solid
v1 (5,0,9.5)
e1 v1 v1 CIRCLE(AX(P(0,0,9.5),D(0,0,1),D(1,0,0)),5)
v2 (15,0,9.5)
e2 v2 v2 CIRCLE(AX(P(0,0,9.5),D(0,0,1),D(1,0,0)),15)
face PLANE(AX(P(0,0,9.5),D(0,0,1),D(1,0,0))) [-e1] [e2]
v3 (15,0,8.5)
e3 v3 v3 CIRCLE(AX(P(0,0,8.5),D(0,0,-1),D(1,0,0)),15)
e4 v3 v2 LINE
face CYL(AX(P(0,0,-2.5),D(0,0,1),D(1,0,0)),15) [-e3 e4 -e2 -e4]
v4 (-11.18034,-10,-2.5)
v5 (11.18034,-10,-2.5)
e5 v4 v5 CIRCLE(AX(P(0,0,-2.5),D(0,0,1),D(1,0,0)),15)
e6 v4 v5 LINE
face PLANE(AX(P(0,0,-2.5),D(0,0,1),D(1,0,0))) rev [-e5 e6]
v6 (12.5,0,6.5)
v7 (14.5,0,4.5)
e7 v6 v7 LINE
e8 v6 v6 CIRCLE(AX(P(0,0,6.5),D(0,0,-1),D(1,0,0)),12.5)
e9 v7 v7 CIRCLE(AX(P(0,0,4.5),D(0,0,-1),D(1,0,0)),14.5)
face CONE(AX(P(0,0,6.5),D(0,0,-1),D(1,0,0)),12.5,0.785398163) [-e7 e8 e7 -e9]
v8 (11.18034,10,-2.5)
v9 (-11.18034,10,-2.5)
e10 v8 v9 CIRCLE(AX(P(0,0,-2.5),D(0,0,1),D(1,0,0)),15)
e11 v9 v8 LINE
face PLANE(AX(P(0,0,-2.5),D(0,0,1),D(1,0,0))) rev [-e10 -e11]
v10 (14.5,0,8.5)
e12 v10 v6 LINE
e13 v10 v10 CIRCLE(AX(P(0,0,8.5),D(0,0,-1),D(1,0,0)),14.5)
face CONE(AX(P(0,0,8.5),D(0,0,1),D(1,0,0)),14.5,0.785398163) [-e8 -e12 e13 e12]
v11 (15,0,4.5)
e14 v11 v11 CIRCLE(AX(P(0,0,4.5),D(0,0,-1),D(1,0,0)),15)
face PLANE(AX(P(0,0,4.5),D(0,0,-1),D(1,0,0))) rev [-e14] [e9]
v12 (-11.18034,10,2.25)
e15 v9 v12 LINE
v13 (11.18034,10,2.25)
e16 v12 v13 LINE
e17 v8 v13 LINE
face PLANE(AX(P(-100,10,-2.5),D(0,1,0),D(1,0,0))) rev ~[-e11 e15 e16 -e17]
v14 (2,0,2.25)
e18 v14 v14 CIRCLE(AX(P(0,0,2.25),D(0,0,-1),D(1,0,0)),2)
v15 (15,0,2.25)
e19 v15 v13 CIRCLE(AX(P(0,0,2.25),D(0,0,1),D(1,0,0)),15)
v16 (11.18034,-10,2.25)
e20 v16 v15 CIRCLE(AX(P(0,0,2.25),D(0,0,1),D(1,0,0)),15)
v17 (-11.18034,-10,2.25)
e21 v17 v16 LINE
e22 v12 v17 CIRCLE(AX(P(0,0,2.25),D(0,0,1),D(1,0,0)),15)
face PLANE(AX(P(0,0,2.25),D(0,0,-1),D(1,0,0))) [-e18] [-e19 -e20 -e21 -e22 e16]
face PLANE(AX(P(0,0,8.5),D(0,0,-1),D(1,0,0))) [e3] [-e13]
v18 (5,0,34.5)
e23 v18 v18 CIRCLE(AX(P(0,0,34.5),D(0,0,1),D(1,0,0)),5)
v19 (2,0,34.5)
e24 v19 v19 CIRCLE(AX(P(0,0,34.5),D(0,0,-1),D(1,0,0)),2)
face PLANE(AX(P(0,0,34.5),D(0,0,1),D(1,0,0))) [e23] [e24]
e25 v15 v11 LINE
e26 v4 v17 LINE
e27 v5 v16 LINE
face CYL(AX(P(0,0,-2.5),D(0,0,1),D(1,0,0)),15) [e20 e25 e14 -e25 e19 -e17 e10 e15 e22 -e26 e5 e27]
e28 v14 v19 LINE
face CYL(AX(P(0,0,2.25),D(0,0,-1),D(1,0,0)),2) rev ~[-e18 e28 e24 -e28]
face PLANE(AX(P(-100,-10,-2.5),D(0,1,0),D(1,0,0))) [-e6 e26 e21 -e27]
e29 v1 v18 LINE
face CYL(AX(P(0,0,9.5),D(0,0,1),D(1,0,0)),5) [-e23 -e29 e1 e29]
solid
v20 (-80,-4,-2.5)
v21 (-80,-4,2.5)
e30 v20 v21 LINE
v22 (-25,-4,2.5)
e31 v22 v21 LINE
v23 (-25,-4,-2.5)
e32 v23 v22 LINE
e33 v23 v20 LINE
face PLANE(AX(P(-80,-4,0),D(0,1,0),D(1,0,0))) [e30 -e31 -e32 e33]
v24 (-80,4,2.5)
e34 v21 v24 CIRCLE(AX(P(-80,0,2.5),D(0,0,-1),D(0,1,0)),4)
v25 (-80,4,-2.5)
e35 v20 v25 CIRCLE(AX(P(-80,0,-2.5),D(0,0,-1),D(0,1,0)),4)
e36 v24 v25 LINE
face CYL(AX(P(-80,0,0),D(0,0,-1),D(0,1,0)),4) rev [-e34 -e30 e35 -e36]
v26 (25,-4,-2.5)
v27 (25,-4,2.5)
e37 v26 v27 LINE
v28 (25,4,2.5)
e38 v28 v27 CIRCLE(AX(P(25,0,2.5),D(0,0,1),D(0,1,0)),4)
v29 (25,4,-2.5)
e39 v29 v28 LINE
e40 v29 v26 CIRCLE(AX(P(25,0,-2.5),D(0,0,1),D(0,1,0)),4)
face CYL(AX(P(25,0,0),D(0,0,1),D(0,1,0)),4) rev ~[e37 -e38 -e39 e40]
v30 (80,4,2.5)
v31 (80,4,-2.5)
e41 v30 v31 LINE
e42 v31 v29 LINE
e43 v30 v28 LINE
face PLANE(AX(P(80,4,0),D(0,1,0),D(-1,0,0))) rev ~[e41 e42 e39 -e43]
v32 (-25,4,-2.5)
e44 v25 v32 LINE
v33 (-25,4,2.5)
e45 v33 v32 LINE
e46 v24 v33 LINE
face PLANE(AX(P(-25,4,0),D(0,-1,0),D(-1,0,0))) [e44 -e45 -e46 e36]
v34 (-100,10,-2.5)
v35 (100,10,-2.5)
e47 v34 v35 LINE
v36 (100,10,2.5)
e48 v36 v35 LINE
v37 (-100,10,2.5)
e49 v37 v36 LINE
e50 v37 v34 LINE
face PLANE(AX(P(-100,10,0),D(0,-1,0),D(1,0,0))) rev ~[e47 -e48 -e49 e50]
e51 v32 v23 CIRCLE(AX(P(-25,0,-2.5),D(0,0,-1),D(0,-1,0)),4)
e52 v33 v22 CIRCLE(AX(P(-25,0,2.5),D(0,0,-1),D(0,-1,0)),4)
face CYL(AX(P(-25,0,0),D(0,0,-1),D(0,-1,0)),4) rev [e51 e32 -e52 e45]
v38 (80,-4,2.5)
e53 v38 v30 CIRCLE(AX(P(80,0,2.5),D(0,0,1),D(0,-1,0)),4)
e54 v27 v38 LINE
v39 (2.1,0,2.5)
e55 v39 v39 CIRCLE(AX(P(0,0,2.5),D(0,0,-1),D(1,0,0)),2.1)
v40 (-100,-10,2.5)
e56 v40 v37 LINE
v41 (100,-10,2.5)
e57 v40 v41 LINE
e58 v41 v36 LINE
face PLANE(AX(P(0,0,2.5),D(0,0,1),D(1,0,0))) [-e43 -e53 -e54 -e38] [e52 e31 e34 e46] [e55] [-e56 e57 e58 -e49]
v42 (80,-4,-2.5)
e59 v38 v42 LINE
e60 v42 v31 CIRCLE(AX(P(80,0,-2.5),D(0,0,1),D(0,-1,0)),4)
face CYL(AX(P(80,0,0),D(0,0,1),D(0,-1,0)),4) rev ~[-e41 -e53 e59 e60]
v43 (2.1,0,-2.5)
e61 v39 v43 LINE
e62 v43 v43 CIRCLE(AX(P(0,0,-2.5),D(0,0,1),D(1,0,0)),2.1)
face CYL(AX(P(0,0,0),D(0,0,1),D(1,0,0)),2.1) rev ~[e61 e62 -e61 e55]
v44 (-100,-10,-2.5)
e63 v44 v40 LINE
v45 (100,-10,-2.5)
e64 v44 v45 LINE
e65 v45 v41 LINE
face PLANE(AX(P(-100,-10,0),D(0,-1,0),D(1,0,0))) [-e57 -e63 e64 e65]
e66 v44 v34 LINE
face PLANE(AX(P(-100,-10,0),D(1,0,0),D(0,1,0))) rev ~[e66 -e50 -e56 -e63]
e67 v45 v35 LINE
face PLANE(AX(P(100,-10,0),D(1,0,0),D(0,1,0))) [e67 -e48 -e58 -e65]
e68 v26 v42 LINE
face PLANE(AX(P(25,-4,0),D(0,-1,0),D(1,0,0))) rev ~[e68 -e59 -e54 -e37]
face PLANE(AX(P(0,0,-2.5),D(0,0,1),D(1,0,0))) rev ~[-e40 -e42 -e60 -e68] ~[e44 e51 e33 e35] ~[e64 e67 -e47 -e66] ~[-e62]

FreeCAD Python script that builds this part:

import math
import FreeCAD as App
import Part
import Sketcher
Q = App.Units.Quantity

doc = App.newDocument("Part")
body = doc.addObject("PartDesign::Body", "Body")

# Sketch on XY plane
sketch1 = body.newObject("Sketcher::SketchObject", "Sketch")
sketch1.AttachmentSupport = (doc.getObject("XY_Plane"), [""])
sketch1.MapMode = "FlatFace"
sketch1.addGeometry([
    Part.LineSegment(App.Vector(-100, 10, 0), App.Vector(-100, -10, 0)),
    Part.LineSegment(App.Vector(-100, -10, 0), App.Vector(100, -10, 0)),
    Part.LineSegment(App.Vector(100, -10, 0), App.Vector(100, 10, 0)),
    Part.LineSegment(App.Vector(100, 10, 0), App.Vector(-100, 10, 0)),
], False)
sketch1.addConstraint([
    Sketcher.Constraint("Coincident", 0, 2, 1, 1),
    Sketcher.Constraint("Coincident", 1, 2, 2, 1),
    Sketcher.Constraint("Coincident", 2, 2, 3, 1),
    Sketcher.Constraint("Coincident", 3, 2, 0, 1),
    Sketcher.Constraint("Vertical", 0),
    Sketcher.Constraint("Horizontal", 1),
    Sketcher.Constraint("Vertical", 2),
    Sketcher.Constraint("Horizontal", 3),
    Sketcher.Constraint("Symmetric", 0, 2, 2, 2, -1, 1),
    Sketcher.Constraint("DistanceX", 1, 1, 1, 2, Q("200 mm")),
    Sketcher.Constraint("DistanceY", 0, 2, 0, 1, Q("20 mm")),
])
pad1 = body.newObject("PartDesign::Pad", "Pad")
pad1.Profile = sketch1
pad1.Length = 5
pad1.Midplane = True

# Sketch on XY plane
sketch2 = body.newObject("Sketcher::SketchObject", "Sketch001")
sketch2.AttachmentSupport = (doc.getObject("XY_Plane"), [""])
sketch2.MapMode = "FlatFace"
sketch2.addGeometry(Part.Circle(App.Vector(0, 0, 0), App.Vector(0, 0, 1), 2.1), False)
sketch2.addConstraint([
    Sketcher.Constraint("Coincident", 0, 3, -1, 1),
    Sketcher.Constraint("Diameter", 0, Q("4.2 mm")),
])
pocket1 = body.newObject("PartDesign::Pocket", "Pocket")
pocket1.Profile = sketch2
pocket1.Type = "ThroughAll"
pocket1.Midplane = True

# Sketch on XY plane
sketch3 = body.newObject("Sketcher::SketchObject", "Sketch002")
sketch3.AttachmentSupport = (doc.getObject("XY_Plane"), [""])
sketch3.MapMode = "FlatFace"
sketch3.addGeometry([
    Part.ArcOfCircle(Part.Circle(App.Vector(-80, 0, 0), App.Vector(0, 0, 1), 4), math.radians(90), math.radians(270)),  # 0
    Part.LineSegment(App.Vector(-80, -4, 0), App.Vector(-25, -4, 0)),  # 1
    Part.ArcOfCircle(Part.Circle(App.Vector(-25, 0, 0), App.Vector(0, 0, 1), 4), math.radians(-90), math.radians(90)),  # 2
    Part.LineSegment(App.Vector(-25, 4, 0), App.Vector(-80, 4, 0)),  # 3
    Part.LineSegment(App.Vector(80, 4, 0), App.Vector(25, 4, 0)),  # 4
    Part.ArcOfCircle(Part.Circle(App.Vector(25, 0, 0), App.Vector(0, 0, 1), 4), math.radians(90), math.radians(270)),  # 5
    Part.LineSegment(App.Vector(25, -4, 0), App.Vector(80, -4, 0)),  # 6
    Part.ArcOfCircle(Part.Circle(App.Vector(80, 0, 0), App.Vector(0, 0, 1), 4), math.radians(-90), math.radians(90)),  # 7
], False)
sketch3.addConstraint([
    Sketcher.Constraint("Tangent", 0, 2, 1, 1),
    Sketcher.Constraint("Tangent", 1, 2, 2, 1),
    Sketcher.Constraint("Tangent", 2, 2, 3, 1),
    Sketcher.Constraint("Tangent", 3, 2, 0, 1),
    Sketcher.Constraint("Tangent", 4, 2, 5, 1),
    Sketcher.Constraint("Tangent", 5, 2, 6, 1),
    Sketcher.Constraint("Tangent", 6, 2, 7, 1),
    Sketcher.Constraint("Tangent", 7, 2, 4, 1),
    Sketcher.Constraint("Horizontal", 1),
    Sketcher.Constraint("Horizontal", 3),
    Sketcher.Constraint("Horizontal", 4),
    Sketcher.Constraint("Horizontal", 6),
    Sketcher.Constraint("Equal", 2, 5),
    Sketcher.Constraint("Symmetric", 2, 3, 5, 3, -1, 1),
    Sketcher.Constraint("Symmetric", 0, 3, 7, 3, -2),
    Sketcher.Constraint("Radius", 0, Q("4 mm")),
    Sketcher.Constraint("DistanceX", 1, 1, 1, 2, Q("55 mm")),
    Sketcher.Constraint("DistanceX", 0, 3, -1, 1, Q("80 mm")),
])
pocket2 = body.newObject("PartDesign::Pocket", "Pocket001")
pocket2.Profile = sketch3
pocket2.Length = 25
pocket2.Midplane = True
body2 = doc.addObject("PartDesign::Body", "Body001")

# Sketch on XZ plane
sketch4 = body2.newObject("Sketcher::SketchObject", "Sketch003")
sketch4.AttachmentSupport = (doc.getObject("XZ_Plane001"), [""])
sketch4.MapMode = "FlatFace"
sketch4.addGeometry([
    Part.LineSegment(App.Vector(0, 34, 0), App.Vector(0, -2, 0)),  # 0
    Part.LineSegment(App.Vector(0, -2, 0), App.Vector(15, -2, 0)),  # 1
    Part.LineSegment(App.Vector(15, -2, 0), App.Vector(15, 10, 0)),  # 2
    Part.LineSegment(App.Vector(15, 10, 0), App.Vector(5, 10, 0)),  # 3
    Part.LineSegment(App.Vector(5, 10, 0), App.Vector(5, 34, 0)),  # 4
    Part.LineSegment(App.Vector(5, 34, 0), App.Vector(0, 34, 0)),  # 5
], False)
sketch4.addConstraint([
    Sketcher.Constraint("Coincident", 0, 2, 1, 1),
    Sketcher.Constraint("Coincident", 1, 2, 2, 1),
    Sketcher.Constraint("Coincident", 2, 2, 3, 1),
    Sketcher.Constraint("Coincident", 3, 2, 4, 1),
    Sketcher.Constraint("Coincident", 4, 2, 5, 1),
    Sketcher.Constraint("Coincident", 5, 2, 0, 1),
    Sketcher.Constraint("Vertical", 0),
    Sketcher.Constraint("Horizontal", 1),
    Sketcher.Constraint("Vertical", 2),
    Sketcher.Constraint("Horizontal", 3),
    Sketcher.Constraint("Vertical", 4),
    Sketcher.Constraint("Horizontal", 5),
    Sketcher.Constraint("PointOnObject", 0, 2, -2),
    Sketcher.Constraint("DistanceX", 1, 1, 1, 2, Q("15 mm")),
    Sketcher.Constraint("DistanceX", 3, 2, 3, 1, Q("10 mm")),
    Sketcher.Constraint("DistanceY", 0, 2, 0, 1, Q("37 mm")),
    Sketcher.Constraint("DistanceY", 2, 1, 2, 2, Q("12 mm")),
    Sketcher.Constraint("DistanceY", 0, 2, -1, 1, Q("2.5 mm")),
])
revolution = body2.newObject("PartDesign::Revolution", "Revolution")
revolution.Profile = sketch4
revolution.ReferenceAxis = (sketch4, ["V_Axis"])
revolution.Angle = 360

# Sketch on XZ plane
sketch5 = body2.newObject("Sketcher::SketchObject", "Sketch004")
sketch5.AttachmentSupport = (doc.getObject("XZ_Plane001"), [""])
sketch5.MapMode = "FlatFace"
sketch5.addGeometry([
    Part.LineSegment(App.Vector(15, 4.5, 0), App.Vector(15, 8.5, 0)),  # 0
    Part.LineSegment(App.Vector(15, 8.5, 0), App.Vector(14.5, 8.5, 0)),  # 1
    Part.LineSegment(App.Vector(14.5, 8.5, 0), App.Vector(12.5, 6.5, 0)),  # 2
    Part.LineSegment(App.Vector(12.5, 6.5, 0), App.Vector(14.5, 4.5, 0)),  # 3
    Part.LineSegment(App.Vector(14.5, 4.5, 0), App.Vector(15, 4.5, 0)),  # 4
], False)
sketch5.addConstraint([
    Sketcher.Constraint("Coincident", 0, 2, 1, 1),
    Sketcher.Constraint("Coincident", 1, 2, 2, 1),
    Sketcher.Constraint("Coincident", 2, 2, 3, 1),
    Sketcher.Constraint("Coincident", 3, 2, 4, 1),
    Sketcher.Constraint("Coincident", 4, 2, 0, 1),
    Sketcher.Constraint("Vertical", 0),
    Sketcher.Constraint("Horizontal", 1),
    Sketcher.Constraint("Horizontal", 4),
    Sketcher.Constraint("Perpendicular", 2, 3),
    Sketcher.Constraint("Vertical", 1, 2, 3, 2),
    Sketcher.Constraint("Equal", 2, 3),
    Sketcher.Constraint("DistanceY", 0, 1, 0, 2, Q("4 mm")),
    Sketcher.Constraint("DistanceX", 1, 2, 1, 1, Q("0.5 mm")),
    Sketcher.Constraint("DistanceX", -1, 1, 0, 2, Q("15 mm")),
    Sketcher.Constraint("DistanceY", -1, 1, 0, 2, Q("8.5 mm")),
])
groove = body2.newObject("PartDesign::Groove", "Groove")
groove.Profile = sketch5
groove.ReferenceAxis = (sketch5, ["V_Axis"])
groove.Angle = 360

# Sketch on XY plane
sketch6 = body2.newObject("Sketcher::SketchObject", "Sketch005")
sketch6.AttachmentSupport = (doc.getObject("XY_Plane001"), [""])
sketch6.MapMode = "FlatFace"
sketch6.AttachmentOffset = App.Placement(App.Vector(0, 0, -2.5), App.Rotation())
sketch6.addGeometry([
    Part.LineSegment(App.Vector(-100, -10, 0), App.Vector(-100, 10, 0)),
    Part.LineSegment(App.Vector(-100, 10, 0), App.Vector(100, 10, 0)),
    Part.LineSegment(App.Vector(100, 10, 0), App.Vector(100, -10, 0)),
    Part.LineSegment(App.Vector(100, -10, 0), App.Vector(-100, -10, 0)),
], False)
sketch6.addConstraint([
    Sketcher.Constraint("Coincident", 0, 2, 1, 1),
    Sketcher.Constraint("Coincident", 1, 2, 2, 1),
    Sketcher.Constraint("Coincident", 2, 2, 3, 1),
    Sketcher.Constraint("Coincident", 3, 2, 0, 1),
    Sketcher.Constraint("Vertical", 0),
    Sketcher.Constraint("Horizontal", 1),
    Sketcher.Constraint("Vertical", 2),
    Sketcher.Constraint("Horizontal", 3),
    Sketcher.Constraint("Symmetric", 0, 2, 2, 2, -1, 1),
    Sketcher.Constraint("DistanceX", 1, 1, 1, 2, Q("200 mm")),
    Sketcher.Constraint("DistanceY", 0, 1, 0, 2, Q("20 mm")),
])
pocket3 = body2.newObject("PartDesign::Pocket", "Pocket002")
pocket3.Profile = sketch6
pocket3.Length = 4.75
pocket3.Reversed = True

# Sketch on XY plane
sketch7 = body2.newObject("Sketcher::SketchObject", "Sketch006")
sketch7.AttachmentSupport = (doc.getObject("XY_Plane001"), [""])
sketch7.MapMode = "FlatFace"
sketch7.AttachmentOffset = App.Placement(App.Vector(0, 0, 2.25), App.Rotation())
sketch7.addGeometry(Part.Circle(App.Vector(0, 0, 0), App.Vector(0, 0, 1), 2), False)
sketch7.addConstraint([
    Sketcher.Constraint("Coincident", 0, 3, -1, 1),
    Sketcher.Constraint("Diameter", 0, Q("4 mm")),
])
pocket4 = body2.newObject("PartDesign::Pocket", "Pocket003")
pocket4.Profile = sketch7
pocket4.Type = "ThroughAll"
pocket4.Reversed = True

doc.recompute()
